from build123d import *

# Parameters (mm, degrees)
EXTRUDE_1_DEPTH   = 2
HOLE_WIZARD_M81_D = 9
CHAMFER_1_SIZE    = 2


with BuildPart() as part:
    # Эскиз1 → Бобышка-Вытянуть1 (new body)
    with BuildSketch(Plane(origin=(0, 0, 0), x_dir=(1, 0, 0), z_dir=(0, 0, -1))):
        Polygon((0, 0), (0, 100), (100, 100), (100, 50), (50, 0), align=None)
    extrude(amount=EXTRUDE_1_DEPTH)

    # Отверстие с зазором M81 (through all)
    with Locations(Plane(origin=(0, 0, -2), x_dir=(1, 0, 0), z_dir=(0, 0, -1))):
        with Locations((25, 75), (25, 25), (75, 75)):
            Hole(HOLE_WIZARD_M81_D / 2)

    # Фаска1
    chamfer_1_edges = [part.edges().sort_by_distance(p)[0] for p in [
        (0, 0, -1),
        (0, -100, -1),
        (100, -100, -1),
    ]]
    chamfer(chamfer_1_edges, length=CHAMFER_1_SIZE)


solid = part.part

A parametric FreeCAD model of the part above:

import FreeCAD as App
import Part
import Sketcher
from FreeCAD import Vector
Q = App.Units.Quantity


def edges_at(feature, points):
    """Names of the edges that pass closest to the given points."""
    edges = feature.Shape.Edges
    near = lambda p: min(range(len(edges)), key=lambda i: edges[i].distToShape(Part.Vertex(*p))[0])
    return sorted({f"Edge{near(p) + 1}" for p in points})

doc = App.newDocument("Part")
body = doc.addObject("PartDesign::Body", "Body")

sketch1 = body.newObject("Sketcher::SketchObject", "Sketch")
sketch1.AttachmentSupport = (doc.getObject("XY_Plane"), [""])
sketch1.MapMode = "FlatFace"
sketch1.addGeometry([
    Part.LineSegment(Vector(0, -100, 0), Vector(0, 0, 0)),
    Part.LineSegment(Vector(0, 0, 0), Vector(50, 0, 0)),
    Part.LineSegment(Vector(50, 0, 0), Vector(100, -50, 0)),
    Part.LineSegment(Vector(100, -50, 0), Vector(100, -100, 0)),
    Part.LineSegment(Vector(100, -100, 0), Vector(0, -100, 0)),
], False)
sketch1.addConstraint([
    Sketcher.Constraint("Coincident", 0, 2, 1, 1),
    Sketcher.Constraint("Coincident", 1, 2, 2, 1),
    Sketcher.Constraint("Coincident", 2, 2, 3, 1),
    Sketcher.Constraint("Coincident", 3, 2, 4, 1),
    Sketcher.Constraint("Coincident", 4, 2, 0, 1),
    Sketcher.Constraint("Vertical", 0),
    Sketcher.Constraint("Horizontal", 1),
    Sketcher.Constraint("Vertical", 3),
    Sketcher.Constraint("Horizontal", 4),
    Sketcher.Constraint("Coincident", 0, 2, -1, 1),
    Sketcher.Constraint("Equal", 4, 0),
    Sketcher.Constraint("Equal", 1, 3),
    Sketcher.Constraint("DistanceX", 1, 1, 1, 2, Q("50 mm")),
    Sketcher.Constraint("DistanceX", 4, 2, 4, 1, Q("100 mm")),
])
pad1 = body.newObject("PartDesign::Pad", "Pad")
pad1.Profile = sketch1
pad1.Length = 2
pad1.Reversed = True

sketch2 = body.newObject("Sketcher::SketchObject", "Sketch001")
sketch2.AttachmentSupport = (doc.getObject("XY_Plane"), [""])
sketch2.MapMode = "FlatFace"
sketch2.AttachmentOffset = App.Placement(Vector(0, 0, -2), App.Rotation())
sketch2.addGeometry([
    Part.Circle(Vector(25, -75, 0), Vector(0, 0, 1), 4.5),
    Part.Circle(Vector(25, -25, 0), Vector(0, 0, 1), 4.5),
    Part.Circle(Vector(75, -75, 0), Vector(0, 0, 1), 4.5),
], False)
sketch2.addConstraint([
    Sketcher.Constraint("Equal", 0, 1),
    Sketcher.Constraint("Equal", 1, 2),
    Sketcher.Constraint("Horizontal", 0, 3, 2, 3),
    Sketcher.Constraint("Vertical", 0, 3, 1, 3),
    Sketcher.Constraint("Diameter", 0, Q("9 mm")),
    Sketcher.Constraint("DistanceX", -1, 1, 0, 3, Q("25 mm")),
    Sketcher.Constraint("DistanceY", 0, 3, -1, 1, Q("75 mm")),
    Sketcher.Constraint("DistanceY", 1, 3, -1, 1, Q("25 mm")),
    Sketcher.Constraint("DistanceX", -1, 1, 2, 3, Q("75 mm")),
])
doc.recompute()
hole = body.newObject("PartDesign::Hole", "Hole")
hole.Profile = sketch2
hole.ThreadType = "None"
hole.Diameter = 9
hole.DepthType = "ThroughAll"
hole.Reversed = True
doc.recompute()

chamfer = body.newObject("PartDesign::Chamfer", "Chamfer")
chamfer.Base = (hole, edges_at(hole, [(0, 0, -1), (0, -100, -1), (100, -100, -1)]))
chamfer.Size = 2

doc.recompute()
